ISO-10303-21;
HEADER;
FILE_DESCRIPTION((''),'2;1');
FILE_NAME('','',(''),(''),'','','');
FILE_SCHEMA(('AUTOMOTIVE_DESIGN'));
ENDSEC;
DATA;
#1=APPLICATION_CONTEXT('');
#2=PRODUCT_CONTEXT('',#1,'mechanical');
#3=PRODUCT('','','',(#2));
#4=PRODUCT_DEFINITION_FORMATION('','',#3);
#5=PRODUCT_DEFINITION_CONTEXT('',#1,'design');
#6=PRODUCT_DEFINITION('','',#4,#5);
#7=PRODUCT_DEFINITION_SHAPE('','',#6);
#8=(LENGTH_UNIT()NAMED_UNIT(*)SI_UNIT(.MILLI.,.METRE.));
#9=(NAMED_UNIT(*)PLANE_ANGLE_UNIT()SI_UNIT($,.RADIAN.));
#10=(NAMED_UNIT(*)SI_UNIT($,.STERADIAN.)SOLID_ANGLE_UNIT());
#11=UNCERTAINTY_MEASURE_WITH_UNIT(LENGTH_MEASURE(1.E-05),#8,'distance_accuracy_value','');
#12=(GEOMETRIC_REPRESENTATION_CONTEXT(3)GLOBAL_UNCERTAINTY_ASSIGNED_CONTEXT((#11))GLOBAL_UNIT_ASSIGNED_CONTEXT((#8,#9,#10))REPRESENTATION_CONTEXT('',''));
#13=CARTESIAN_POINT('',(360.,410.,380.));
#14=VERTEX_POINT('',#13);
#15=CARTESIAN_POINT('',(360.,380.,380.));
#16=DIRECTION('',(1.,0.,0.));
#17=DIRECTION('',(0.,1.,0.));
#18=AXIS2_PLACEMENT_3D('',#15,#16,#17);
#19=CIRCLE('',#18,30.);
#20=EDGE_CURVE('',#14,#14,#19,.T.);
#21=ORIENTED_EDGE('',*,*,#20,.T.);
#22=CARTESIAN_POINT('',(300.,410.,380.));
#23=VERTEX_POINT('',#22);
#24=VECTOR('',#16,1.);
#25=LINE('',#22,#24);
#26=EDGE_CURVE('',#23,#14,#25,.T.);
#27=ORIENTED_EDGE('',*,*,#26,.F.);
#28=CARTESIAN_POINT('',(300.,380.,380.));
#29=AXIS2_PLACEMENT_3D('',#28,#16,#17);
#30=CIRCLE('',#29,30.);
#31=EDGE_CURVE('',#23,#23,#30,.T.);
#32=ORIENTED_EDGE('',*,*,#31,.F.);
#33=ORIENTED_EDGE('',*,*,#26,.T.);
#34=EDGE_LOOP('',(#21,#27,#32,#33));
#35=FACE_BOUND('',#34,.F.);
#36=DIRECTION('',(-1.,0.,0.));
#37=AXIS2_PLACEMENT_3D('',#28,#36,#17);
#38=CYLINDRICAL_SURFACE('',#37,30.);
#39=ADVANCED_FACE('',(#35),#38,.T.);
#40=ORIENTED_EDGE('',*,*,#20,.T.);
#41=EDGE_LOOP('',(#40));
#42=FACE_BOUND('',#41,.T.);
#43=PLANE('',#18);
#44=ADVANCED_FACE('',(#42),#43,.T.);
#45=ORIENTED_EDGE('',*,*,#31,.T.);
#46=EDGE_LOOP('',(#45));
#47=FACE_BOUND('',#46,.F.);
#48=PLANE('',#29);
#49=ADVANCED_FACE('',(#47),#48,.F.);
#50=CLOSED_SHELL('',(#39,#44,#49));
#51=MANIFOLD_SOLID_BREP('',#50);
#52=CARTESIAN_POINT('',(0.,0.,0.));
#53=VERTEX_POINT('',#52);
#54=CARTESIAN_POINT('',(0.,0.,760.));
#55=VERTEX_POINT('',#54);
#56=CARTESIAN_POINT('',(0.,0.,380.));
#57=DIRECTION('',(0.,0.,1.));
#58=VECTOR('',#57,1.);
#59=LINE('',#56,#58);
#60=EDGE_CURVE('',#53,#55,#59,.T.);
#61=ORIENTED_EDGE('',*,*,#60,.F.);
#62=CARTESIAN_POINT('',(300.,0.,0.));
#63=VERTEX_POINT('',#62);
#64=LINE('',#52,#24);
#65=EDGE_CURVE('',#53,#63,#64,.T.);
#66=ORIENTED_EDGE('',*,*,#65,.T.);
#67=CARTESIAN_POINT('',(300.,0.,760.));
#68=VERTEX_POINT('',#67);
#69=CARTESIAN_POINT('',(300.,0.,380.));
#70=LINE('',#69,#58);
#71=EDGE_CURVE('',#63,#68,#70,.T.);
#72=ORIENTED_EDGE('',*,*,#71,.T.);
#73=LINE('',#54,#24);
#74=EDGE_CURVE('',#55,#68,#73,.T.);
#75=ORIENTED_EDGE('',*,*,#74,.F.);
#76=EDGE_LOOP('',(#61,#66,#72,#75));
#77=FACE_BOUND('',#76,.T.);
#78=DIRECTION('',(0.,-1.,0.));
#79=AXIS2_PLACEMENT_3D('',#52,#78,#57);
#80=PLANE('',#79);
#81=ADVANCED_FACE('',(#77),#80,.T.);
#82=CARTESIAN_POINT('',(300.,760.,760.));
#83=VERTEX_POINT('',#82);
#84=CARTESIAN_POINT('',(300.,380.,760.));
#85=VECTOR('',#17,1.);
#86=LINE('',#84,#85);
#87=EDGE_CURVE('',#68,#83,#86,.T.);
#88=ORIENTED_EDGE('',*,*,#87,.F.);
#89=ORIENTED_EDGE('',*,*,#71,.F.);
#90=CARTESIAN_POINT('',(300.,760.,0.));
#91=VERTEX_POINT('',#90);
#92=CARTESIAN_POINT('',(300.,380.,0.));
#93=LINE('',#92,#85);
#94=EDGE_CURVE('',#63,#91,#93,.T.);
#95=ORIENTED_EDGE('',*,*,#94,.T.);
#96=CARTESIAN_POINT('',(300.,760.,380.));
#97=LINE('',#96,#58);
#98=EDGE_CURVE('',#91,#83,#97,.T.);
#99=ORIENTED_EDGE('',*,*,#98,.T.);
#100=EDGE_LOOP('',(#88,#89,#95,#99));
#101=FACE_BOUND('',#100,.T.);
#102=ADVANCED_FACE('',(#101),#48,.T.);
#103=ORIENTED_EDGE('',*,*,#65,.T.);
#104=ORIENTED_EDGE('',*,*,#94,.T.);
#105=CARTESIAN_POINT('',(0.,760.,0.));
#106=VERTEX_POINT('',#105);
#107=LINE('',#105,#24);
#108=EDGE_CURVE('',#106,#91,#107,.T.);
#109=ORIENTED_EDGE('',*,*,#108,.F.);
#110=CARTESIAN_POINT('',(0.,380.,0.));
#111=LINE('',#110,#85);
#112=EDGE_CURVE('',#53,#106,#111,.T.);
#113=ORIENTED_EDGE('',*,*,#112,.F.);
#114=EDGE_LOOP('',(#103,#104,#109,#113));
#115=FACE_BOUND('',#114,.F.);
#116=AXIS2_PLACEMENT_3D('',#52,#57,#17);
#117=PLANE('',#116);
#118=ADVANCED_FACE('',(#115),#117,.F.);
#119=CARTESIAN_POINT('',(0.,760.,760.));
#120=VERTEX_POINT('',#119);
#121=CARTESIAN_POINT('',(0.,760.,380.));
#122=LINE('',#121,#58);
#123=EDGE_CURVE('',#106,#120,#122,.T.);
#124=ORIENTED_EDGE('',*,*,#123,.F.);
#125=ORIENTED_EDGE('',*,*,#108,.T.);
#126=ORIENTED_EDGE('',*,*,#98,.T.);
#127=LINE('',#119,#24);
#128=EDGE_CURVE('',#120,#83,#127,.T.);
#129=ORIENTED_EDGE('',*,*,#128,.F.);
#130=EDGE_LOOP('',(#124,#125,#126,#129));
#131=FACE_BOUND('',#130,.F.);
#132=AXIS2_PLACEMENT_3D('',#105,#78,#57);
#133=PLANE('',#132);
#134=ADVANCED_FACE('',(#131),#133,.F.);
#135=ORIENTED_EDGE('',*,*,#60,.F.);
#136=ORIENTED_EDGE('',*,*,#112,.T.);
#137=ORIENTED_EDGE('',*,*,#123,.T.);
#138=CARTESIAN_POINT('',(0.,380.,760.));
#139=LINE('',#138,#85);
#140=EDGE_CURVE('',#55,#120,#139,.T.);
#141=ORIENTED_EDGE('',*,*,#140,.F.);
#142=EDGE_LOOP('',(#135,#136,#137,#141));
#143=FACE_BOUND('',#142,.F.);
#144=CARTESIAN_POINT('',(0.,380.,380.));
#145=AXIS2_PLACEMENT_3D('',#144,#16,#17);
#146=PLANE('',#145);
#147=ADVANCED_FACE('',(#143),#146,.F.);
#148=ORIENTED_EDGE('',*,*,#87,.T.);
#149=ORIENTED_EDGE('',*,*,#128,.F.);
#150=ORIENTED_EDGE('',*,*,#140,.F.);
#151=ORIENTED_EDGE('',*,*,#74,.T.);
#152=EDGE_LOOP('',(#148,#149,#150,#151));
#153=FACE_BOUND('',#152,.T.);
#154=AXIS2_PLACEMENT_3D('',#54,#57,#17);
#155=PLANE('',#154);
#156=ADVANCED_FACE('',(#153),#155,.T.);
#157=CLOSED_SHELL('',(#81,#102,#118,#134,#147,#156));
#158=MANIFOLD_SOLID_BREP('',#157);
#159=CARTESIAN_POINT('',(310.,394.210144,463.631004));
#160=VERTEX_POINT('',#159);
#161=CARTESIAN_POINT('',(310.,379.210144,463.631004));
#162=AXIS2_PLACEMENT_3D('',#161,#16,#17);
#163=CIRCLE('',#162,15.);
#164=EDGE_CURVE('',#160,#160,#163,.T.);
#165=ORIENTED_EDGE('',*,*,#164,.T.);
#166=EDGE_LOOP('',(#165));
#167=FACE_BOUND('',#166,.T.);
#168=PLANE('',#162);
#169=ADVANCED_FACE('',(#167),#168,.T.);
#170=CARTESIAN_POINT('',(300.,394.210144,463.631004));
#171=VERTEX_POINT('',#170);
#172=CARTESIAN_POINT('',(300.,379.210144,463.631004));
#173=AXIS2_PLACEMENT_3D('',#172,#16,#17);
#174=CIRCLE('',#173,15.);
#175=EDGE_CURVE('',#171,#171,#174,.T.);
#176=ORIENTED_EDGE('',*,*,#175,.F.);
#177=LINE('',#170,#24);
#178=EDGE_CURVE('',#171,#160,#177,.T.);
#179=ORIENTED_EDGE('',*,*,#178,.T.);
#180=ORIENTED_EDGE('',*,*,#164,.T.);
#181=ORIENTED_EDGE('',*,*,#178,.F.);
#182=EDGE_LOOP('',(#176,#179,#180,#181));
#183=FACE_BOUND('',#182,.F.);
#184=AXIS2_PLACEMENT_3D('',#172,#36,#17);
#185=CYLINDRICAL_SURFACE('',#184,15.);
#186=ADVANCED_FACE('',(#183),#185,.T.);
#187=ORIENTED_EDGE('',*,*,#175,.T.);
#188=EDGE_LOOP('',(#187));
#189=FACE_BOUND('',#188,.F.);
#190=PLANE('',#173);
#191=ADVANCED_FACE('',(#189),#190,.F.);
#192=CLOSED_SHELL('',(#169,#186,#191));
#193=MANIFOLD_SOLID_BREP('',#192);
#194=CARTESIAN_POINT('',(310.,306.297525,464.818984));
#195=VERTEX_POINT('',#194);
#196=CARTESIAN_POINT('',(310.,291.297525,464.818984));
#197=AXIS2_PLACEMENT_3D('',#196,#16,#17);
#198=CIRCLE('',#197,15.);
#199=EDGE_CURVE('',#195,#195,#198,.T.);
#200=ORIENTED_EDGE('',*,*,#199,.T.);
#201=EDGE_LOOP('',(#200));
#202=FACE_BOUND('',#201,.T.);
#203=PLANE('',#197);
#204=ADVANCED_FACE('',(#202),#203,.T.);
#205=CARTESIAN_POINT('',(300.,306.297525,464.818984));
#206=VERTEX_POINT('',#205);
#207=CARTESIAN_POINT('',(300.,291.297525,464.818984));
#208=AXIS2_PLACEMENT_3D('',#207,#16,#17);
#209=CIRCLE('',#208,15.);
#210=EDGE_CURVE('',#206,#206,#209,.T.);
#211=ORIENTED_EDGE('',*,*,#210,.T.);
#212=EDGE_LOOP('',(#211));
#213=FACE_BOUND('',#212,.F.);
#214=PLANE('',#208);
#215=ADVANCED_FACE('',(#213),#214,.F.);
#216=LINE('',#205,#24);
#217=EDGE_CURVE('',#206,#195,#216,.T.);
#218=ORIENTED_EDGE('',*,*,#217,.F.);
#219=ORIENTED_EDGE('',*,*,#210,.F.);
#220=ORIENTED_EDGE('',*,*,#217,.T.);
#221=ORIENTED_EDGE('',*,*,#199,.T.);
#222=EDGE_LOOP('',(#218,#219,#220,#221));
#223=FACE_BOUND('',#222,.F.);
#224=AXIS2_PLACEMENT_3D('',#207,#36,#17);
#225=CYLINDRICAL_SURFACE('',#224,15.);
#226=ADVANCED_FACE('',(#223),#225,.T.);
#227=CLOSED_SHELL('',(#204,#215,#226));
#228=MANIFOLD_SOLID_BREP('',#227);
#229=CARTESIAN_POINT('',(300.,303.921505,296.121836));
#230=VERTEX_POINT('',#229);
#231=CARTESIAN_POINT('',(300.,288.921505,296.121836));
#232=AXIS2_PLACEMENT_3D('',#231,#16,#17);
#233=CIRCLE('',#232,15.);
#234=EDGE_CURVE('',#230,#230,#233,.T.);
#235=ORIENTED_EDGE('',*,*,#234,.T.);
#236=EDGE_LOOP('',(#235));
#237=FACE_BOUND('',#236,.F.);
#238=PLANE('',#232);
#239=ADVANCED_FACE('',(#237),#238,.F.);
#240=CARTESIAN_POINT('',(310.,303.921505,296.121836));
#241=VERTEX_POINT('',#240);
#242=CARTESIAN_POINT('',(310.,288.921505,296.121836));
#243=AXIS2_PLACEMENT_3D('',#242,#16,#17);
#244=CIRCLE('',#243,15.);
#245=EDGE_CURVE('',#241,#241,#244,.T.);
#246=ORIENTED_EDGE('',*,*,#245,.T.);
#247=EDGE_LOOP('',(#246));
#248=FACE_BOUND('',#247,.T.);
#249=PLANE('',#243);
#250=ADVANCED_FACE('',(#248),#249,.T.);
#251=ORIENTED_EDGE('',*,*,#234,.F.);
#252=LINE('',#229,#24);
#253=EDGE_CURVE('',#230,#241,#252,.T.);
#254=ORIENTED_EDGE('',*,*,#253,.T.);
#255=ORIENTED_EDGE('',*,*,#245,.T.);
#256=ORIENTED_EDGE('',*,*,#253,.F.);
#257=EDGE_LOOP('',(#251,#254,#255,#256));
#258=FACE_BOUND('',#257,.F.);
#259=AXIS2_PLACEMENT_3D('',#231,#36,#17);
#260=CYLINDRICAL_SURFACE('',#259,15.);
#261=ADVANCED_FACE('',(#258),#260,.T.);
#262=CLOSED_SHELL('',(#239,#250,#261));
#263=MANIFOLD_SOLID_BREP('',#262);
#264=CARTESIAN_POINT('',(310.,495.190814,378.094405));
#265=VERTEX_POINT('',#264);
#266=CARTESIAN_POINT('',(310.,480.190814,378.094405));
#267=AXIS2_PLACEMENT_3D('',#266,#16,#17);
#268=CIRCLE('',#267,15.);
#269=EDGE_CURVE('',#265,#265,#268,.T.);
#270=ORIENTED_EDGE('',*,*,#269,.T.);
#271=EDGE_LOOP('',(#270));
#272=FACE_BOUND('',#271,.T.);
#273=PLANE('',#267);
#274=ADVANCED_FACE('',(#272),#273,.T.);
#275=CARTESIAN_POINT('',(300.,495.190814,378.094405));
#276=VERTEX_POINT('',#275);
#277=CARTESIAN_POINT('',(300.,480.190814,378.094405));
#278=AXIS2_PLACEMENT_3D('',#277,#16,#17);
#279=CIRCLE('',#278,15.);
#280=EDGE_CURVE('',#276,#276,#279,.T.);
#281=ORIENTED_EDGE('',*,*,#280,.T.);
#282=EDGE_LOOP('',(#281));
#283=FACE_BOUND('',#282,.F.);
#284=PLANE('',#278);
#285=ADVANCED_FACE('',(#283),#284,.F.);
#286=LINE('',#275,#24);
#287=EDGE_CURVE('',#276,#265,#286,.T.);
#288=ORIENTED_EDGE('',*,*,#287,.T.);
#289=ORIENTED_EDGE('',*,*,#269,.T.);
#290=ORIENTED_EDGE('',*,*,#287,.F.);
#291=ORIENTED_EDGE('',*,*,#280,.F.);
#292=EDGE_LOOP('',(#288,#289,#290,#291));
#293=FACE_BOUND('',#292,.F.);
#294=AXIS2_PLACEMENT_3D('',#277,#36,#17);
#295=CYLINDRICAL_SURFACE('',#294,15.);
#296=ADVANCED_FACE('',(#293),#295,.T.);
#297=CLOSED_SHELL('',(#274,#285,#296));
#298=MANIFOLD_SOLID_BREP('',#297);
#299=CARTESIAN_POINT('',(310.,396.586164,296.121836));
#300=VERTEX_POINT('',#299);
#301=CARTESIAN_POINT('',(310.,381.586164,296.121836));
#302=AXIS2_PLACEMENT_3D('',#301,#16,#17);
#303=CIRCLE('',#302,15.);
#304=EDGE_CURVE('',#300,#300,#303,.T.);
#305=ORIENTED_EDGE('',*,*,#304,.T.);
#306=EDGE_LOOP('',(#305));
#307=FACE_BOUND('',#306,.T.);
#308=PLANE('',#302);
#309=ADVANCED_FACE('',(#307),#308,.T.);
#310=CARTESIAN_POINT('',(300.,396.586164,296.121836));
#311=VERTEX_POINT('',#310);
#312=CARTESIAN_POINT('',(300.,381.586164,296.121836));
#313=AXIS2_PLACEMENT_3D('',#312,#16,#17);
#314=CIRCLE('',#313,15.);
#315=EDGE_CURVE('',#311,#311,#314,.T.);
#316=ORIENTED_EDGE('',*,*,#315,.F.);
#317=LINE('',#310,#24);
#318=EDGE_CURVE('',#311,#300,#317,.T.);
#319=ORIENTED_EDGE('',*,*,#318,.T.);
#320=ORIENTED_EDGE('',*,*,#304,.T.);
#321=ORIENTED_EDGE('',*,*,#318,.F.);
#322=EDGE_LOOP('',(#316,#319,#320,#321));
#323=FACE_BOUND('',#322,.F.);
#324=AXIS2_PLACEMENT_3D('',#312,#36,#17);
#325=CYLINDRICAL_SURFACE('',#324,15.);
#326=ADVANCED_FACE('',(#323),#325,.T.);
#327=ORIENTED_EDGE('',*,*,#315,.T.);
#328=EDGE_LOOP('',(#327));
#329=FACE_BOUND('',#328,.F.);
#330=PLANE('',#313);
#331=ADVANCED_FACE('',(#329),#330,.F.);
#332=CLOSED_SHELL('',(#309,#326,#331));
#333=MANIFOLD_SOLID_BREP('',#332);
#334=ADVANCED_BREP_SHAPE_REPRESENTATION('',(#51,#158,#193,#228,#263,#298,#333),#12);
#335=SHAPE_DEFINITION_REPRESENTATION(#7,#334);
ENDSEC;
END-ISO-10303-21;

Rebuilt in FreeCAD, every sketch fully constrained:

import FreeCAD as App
import Part
import Sketcher
Q = App.Units.Quantity

doc = App.newDocument("Part")
body = doc.addObject("PartDesign::Body", "Body")

# Sketch on YZ plane
sketch1 = body.newObject("Sketcher::SketchObject", "Sketch")
sketch1.AttachmentSupport = (doc.getObject("YZ_Plane"), [""])
sketch1.MapMode = "FlatFace"
sketch1.addGeometry([
    Part.LineSegment(App.Vector(0, 760, 0), App.Vector(0, 0, 0)),
    Part.LineSegment(App.Vector(0, 0, 0), App.Vector(760, 0, 0)),
    Part.LineSegment(App.Vector(760, 0, 0), App.Vector(760, 760, 0)),
    Part.LineSegment(App.Vector(760, 760, 0), App.Vector(0, 760, 0)),
], False)
sketch1.addConstraint([
    Sketcher.Constraint("Coincident", 0, 2, 1, 1),
    Sketcher.Constraint("Coincident", 1, 2, 2, 1),
    Sketcher.Constraint("Coincident", 2, 2, 3, 1),
    Sketcher.Constraint("Coincident", 3, 2, 0, 1),
    Sketcher.Constraint("Vertical", 0),
    Sketcher.Constraint("Horizontal", 1),
    Sketcher.Constraint("Vertical", 2),
    Sketcher.Constraint("Horizontal", 3),
    Sketcher.Constraint("Coincident", 0, 2, -1, 1),
    Sketcher.Constraint("Equal", 3, 0),
    Sketcher.Constraint("DistanceX", 1, 1, 1, 2, Q("760 mm")),
])
pad1 = body.newObject("PartDesign::Pad", "Pad")
pad1.Profile = sketch1
pad1.Length = 300
body2 = doc.addObject("PartDesign::Body", "Body001")

# Sketch on YZ plane
sketch2 = body2.newObject("Sketcher::SketchObject", "Sketch001")
sketch2.AttachmentSupport = (doc.getObject("YZ_Plane001"), [""])
sketch2.MapMode = "FlatFace"
sketch2.AttachmentOffset = App.Placement(App.Vector(0, 0, 300), App.Rotation())
sketch2.addGeometry(Part.Circle(App.Vector(380, 380, 0), App.Vector(0, 0, 1), 30), False)
sketch2.addConstraint([
    Sketcher.Constraint("Diameter", 0, Q("60 mm")),
    Sketcher.Constraint("DistanceX", -1, 1, 0, 3, Q("380 mm")),
    Sketcher.Constraint("DistanceY", -1, 1, 0, 3, Q("380 mm")),
])
pad2 = body2.newObject("PartDesign::Pad", "Pad001")
pad2.Profile = sketch2
pad2.Length = 60
body3 = doc.addObject("PartDesign::Body", "Body002")
body3.AllowCompound = True

# Sketch on YZ plane
sketch3 = body3.newObject("Sketcher::SketchObject", "Sketch002")
sketch3.AttachmentSupport = (doc.getObject("YZ_Plane002"), [""])
sketch3.MapMode = "FlatFace"
sketch3.AttachmentOffset = App.Placement(App.Vector(0, 0, 300), App.Rotation())
sketch3.addGeometry([
    Part.Circle(App.Vector(288.921505, 296.121836, 0), App.Vector(0, 0, 1), 15),  # 0
    Part.Circle(App.Vector(291.297525, 464.818984, 0), App.Vector(0, 0, 1), 15),  # 1
    Part.Circle(App.Vector(381.586164, 296.121836, 0), App.Vector(0, 0, 1), 15),  # 2
    Part.Circle(App.Vector(379.210144, 463.631004, 0), App.Vector(0, 0, 1), 15),  # 3
    Part.Circle(App.Vector(480.190814, 378.094405, 0), App.Vector(0, 0, 1), 15),  # 4
], False)
sketch3.addConstraint([
    Sketcher.Constraint("Equal", 0, 1),
    Sketcher.Constraint("Equal", 1, 2),
    Sketcher.Constraint("Equal", 2, 3),
    Sketcher.Constraint("Equal", 3, 4),
    Sketcher.Constraint("Horizontal", 0, 3, 2, 3),
    Sketcher.Constraint("Diameter", 0, Q("30 mm")),
    Sketcher.Constraint("DistanceY", 4, 3, 3, 3, Q("85.536599 mm")),
    Sketcher.Constraint("DistanceX", 0, 3, 1, 3, Q("2.37602 mm")),
    Sketcher.Constraint("DistanceY", 0, 3, 1, 3, Q("168.697148 mm")),
    Sketcher.Constraint("DistanceX", 0, 3, 2, 3, Q("92.664659 mm")),
    Sketcher.Constraint("DistanceX", 1, 3, 3, 3, Q("87.912619 mm")),
    Sketcher.Constraint("DistanceY", 3, 3, 1, 3, Q("1.18798 mm")),
    Sketcher.Constraint("DistanceX", 2, 3, 4, 3, Q("98.60465 mm")),
    Sketcher.Constraint("DistanceX", -1, 1, 0, 3, Q("288.921505 mm")),
    Sketcher.Constraint("DistanceY", -1, 1, 0, 3, Q("296.121836 mm")),
])
pad3 = body3.newObject("PartDesign::Pad", "Pad002")
pad3.Profile = sketch3
pad3.Length = 10

doc.recompute()
